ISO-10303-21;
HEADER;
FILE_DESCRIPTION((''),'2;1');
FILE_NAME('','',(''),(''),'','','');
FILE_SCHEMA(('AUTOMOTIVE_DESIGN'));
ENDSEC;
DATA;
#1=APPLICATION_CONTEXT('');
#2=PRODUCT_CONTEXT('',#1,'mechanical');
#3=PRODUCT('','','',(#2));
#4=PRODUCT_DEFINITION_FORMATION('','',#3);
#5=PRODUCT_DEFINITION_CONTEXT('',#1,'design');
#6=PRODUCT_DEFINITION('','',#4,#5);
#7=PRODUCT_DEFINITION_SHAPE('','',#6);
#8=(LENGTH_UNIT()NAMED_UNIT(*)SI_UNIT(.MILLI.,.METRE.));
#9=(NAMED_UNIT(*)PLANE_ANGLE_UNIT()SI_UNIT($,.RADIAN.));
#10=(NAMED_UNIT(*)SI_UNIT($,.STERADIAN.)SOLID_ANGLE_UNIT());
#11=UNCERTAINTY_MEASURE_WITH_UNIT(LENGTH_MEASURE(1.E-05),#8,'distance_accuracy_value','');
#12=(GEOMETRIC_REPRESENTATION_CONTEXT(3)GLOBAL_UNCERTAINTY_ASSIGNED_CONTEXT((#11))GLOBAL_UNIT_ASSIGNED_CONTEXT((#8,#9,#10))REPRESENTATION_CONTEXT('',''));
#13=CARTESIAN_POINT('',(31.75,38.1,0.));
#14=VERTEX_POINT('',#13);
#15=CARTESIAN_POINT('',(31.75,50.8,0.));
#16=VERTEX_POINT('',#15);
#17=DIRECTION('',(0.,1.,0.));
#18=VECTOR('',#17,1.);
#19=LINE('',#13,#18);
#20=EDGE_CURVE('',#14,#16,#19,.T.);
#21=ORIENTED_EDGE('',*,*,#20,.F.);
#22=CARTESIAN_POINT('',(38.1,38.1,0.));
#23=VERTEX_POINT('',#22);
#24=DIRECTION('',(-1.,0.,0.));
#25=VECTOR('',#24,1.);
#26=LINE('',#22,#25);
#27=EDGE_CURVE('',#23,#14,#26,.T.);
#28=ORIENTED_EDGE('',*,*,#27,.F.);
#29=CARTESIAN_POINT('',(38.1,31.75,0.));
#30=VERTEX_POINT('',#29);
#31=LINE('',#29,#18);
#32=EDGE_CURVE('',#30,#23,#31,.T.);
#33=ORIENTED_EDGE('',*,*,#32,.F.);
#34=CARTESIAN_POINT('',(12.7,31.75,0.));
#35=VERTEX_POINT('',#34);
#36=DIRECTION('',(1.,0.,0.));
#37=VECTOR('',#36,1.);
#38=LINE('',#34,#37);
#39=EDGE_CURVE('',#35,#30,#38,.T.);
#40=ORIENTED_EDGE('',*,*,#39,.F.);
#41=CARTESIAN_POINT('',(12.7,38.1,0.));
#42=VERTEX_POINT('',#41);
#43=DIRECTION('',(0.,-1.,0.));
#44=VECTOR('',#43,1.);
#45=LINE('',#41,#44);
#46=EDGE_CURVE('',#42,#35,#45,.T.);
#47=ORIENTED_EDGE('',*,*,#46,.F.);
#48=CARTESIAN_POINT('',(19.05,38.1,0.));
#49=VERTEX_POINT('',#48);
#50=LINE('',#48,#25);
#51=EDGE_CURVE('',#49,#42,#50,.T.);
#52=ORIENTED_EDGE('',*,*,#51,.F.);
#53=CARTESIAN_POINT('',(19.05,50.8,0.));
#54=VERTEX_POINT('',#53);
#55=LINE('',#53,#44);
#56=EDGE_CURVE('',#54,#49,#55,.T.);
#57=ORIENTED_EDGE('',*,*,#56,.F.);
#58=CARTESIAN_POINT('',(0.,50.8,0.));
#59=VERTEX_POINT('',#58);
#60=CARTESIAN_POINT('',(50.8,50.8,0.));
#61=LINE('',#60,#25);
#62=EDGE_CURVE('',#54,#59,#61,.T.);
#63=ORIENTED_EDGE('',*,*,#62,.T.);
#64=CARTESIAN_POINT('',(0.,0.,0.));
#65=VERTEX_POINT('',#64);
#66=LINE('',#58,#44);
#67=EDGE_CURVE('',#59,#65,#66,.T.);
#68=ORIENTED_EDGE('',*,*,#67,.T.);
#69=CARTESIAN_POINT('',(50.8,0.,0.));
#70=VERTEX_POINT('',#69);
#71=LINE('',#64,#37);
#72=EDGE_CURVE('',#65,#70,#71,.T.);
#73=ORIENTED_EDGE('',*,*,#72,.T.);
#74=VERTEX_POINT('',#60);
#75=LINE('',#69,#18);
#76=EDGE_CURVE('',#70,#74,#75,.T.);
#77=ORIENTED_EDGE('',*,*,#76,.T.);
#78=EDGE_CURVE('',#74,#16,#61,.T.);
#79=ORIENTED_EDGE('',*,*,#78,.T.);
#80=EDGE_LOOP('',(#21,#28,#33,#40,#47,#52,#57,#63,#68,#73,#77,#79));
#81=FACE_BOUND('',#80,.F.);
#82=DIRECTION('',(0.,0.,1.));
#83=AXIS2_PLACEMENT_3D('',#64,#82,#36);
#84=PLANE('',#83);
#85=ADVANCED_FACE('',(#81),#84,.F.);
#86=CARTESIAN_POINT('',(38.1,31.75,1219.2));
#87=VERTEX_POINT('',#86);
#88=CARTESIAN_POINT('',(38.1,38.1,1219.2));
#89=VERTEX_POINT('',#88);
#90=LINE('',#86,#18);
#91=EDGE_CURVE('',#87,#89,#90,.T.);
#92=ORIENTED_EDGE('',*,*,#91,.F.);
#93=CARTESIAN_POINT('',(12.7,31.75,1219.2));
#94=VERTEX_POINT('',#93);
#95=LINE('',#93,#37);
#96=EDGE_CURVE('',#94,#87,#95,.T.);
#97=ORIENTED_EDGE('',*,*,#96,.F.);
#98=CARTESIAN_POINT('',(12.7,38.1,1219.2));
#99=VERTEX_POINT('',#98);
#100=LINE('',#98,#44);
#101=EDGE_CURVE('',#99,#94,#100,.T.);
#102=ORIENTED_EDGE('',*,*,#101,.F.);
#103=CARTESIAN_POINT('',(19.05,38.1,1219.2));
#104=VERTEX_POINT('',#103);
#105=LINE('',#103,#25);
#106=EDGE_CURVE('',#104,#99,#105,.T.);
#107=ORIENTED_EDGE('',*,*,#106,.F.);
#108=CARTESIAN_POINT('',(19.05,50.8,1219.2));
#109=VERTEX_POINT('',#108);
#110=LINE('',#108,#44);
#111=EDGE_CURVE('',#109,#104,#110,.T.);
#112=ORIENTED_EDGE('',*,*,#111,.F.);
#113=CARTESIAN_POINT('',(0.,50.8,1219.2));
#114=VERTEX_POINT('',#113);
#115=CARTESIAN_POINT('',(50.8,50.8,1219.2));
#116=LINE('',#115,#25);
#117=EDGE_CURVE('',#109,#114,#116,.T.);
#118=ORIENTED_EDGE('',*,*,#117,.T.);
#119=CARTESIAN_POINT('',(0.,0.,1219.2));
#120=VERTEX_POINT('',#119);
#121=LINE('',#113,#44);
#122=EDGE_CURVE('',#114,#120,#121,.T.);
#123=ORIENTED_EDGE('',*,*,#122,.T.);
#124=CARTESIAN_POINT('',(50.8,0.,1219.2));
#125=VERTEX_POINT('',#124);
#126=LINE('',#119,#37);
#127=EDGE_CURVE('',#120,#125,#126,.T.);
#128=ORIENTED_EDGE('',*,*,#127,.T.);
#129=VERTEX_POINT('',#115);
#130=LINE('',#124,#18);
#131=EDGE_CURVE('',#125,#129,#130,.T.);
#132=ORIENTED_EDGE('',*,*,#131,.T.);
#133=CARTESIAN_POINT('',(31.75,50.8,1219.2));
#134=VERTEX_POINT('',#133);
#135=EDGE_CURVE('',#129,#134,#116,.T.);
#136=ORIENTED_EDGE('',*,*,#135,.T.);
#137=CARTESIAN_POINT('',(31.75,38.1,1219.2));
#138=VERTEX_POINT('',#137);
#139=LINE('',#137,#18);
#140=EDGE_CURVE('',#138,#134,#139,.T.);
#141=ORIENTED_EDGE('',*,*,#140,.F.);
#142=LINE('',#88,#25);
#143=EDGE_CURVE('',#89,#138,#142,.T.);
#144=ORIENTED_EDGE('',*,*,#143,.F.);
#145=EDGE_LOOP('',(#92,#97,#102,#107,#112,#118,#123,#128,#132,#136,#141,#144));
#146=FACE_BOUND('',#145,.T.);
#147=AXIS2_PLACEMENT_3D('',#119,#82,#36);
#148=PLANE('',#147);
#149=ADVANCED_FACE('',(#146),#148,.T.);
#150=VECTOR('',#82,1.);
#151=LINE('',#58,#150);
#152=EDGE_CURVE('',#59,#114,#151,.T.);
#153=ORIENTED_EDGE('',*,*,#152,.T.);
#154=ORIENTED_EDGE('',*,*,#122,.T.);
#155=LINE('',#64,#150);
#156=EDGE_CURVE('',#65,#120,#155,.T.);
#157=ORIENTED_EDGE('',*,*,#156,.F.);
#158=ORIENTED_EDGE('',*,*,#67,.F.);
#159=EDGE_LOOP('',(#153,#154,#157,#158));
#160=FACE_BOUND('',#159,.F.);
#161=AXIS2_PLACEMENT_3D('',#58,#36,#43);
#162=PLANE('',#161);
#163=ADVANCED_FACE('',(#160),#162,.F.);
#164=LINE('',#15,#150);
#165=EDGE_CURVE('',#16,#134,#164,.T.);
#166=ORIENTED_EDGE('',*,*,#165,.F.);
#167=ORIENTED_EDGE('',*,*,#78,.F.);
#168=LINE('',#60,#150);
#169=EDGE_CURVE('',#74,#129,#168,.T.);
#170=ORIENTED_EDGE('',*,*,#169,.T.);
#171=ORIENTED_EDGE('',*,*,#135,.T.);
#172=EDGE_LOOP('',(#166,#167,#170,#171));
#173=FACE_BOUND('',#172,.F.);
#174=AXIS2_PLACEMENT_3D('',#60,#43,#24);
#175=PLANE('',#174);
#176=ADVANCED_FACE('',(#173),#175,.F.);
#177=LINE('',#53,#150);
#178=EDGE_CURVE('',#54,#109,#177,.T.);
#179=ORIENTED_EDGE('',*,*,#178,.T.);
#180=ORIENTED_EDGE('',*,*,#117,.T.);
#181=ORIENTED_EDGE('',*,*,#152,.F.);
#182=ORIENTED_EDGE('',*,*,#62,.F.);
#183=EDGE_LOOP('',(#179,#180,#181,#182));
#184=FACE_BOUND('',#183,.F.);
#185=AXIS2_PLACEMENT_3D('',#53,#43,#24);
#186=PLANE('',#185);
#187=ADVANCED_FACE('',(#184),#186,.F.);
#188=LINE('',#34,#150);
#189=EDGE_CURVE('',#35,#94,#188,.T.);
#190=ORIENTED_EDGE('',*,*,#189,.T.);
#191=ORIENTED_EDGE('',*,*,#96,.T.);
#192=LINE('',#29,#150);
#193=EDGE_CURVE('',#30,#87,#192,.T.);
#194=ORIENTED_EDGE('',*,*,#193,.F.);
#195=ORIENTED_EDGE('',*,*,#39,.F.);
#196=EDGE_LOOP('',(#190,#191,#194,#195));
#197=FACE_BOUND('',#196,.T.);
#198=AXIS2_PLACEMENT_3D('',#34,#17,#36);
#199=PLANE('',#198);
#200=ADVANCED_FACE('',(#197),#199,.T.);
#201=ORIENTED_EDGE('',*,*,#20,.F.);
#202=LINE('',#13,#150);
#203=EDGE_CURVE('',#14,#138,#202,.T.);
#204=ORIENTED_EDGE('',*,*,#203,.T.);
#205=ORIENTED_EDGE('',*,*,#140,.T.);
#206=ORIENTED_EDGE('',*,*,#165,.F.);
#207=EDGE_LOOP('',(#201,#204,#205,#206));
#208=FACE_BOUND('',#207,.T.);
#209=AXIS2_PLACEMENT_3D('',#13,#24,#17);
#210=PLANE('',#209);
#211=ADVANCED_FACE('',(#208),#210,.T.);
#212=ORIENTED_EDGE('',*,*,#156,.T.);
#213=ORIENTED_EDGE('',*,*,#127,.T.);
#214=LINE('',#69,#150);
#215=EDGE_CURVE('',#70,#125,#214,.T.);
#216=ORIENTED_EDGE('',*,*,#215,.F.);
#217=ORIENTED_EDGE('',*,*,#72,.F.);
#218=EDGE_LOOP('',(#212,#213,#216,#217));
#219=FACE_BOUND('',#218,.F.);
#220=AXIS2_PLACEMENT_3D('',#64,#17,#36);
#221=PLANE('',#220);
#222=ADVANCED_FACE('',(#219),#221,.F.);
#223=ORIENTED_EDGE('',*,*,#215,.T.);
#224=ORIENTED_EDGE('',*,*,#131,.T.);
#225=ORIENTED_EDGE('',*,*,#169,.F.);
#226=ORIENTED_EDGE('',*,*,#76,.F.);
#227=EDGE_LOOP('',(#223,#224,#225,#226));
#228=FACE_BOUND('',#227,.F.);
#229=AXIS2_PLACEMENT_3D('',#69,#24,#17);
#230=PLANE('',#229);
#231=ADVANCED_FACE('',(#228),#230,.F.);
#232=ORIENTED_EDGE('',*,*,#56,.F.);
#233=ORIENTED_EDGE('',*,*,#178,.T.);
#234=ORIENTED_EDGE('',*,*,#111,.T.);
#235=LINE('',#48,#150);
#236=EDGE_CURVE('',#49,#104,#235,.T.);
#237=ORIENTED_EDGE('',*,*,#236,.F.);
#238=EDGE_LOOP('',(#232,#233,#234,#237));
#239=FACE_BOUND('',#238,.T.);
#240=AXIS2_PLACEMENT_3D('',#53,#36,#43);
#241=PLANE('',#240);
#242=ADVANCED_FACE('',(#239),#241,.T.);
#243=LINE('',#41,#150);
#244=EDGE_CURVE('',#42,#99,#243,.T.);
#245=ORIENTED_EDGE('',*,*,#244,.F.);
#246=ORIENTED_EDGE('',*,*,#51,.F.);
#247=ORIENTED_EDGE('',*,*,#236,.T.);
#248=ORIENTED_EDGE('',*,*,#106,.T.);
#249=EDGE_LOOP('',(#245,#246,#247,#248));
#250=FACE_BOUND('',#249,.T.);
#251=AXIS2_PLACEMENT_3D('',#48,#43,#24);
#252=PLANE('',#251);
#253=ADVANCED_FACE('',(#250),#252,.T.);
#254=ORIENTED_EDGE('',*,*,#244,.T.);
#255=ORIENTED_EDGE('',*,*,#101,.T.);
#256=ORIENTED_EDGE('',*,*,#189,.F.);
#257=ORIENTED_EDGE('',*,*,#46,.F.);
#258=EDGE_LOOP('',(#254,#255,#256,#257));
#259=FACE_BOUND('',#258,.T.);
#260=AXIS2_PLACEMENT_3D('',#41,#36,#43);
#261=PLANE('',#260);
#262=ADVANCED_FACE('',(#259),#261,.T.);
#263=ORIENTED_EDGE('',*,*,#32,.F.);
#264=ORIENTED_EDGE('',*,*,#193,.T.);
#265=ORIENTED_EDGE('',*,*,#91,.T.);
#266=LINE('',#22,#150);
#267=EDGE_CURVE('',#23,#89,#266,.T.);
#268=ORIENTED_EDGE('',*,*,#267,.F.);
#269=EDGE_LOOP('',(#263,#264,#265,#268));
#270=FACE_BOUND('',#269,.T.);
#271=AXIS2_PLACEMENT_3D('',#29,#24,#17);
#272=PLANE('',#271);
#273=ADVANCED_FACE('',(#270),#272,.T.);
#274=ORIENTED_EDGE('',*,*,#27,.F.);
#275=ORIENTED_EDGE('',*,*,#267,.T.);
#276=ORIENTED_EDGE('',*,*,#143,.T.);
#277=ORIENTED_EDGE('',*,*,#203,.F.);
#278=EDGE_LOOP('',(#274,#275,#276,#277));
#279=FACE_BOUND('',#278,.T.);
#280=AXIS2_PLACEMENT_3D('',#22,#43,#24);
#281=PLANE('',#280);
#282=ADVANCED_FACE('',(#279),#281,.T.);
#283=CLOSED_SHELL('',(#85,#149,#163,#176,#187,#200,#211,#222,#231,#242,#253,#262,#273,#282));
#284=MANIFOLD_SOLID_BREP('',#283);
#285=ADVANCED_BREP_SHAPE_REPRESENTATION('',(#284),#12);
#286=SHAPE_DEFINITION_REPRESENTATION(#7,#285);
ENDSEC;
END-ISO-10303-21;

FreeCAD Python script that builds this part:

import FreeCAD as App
import Part
import Sketcher

V = App.Vector
Q = App.Units.Quantity


def add_polygon(sketch, points):
    """Adds a closed chain of lines whose ends are joined by coincident constraints."""
    first, n = sketch.GeometryCount, len(points)
    for a, b in zip(points, points[1:] + points[:1]):
        sketch.addGeometry(Part.LineSegment(App.Vector(*a, 0), App.Vector(*b, 0)), False)
    for i in range(n):
        sketch.addConstraint(Sketcher.Constraint("Coincident", first + i, 2, first + (i + 1) % n, 1))

doc = App.newDocument("Part")
body = doc.addObject("PartDesign::Body", "Body")

# Sketch on XY plane
sketch1 = body.newObject("Sketcher::SketchObject", "Sketch")
sketch1.AttachmentSupport = (doc.getObject("XY_Plane"), [""])
sketch1.MapMode = "FlatFace"
add_polygon(sketch1, [(0, 50.8), (0, 0), (50.8, 0), (50.8, 50.8), (31.75, 50.8), (31.75, 38.1), (38.1, 38.1), (38.1, 31.75), (12.7, 31.75), (12.7, 38.1), (19.05, 38.1), (19.05, 50.8)])  # lines 0-11
sketch1.addConstraint([
    Sketcher.Constraint("Vertical", 0),
    Sketcher.Constraint("Horizontal", 1),
    Sketcher.Constraint("Vertical", 2),
    Sketcher.Constraint("Horizontal", 3),
    Sketcher.Constraint("Vertical", 4),
    Sketcher.Constraint("Horizontal", 5),
    Sketcher.Constraint("Vertical", 6),
    Sketcher.Constraint("Horizontal", 7),
    Sketcher.Constraint("Vertical", 8),
    Sketcher.Constraint("Horizontal", 9),
    Sketcher.Constraint("Vertical", 10),
    Sketcher.Constraint("Horizontal", 11),
    Sketcher.Constraint("Coincident", 0, 2, -1, 1),
    Sketcher.Constraint("Horizontal", 5, 2, 8, 2),
    Sketcher.Constraint("Horizontal", 3, 2, 10, 2),
    Sketcher.Constraint("Equal", 5, 9),
    Sketcher.Constraint("Equal", 3, 11),
    Sketcher.Constraint("Equal", 1, 0),
    Sketcher.Constraint("Equal", 9, 6),
    Sketcher.Constraint("DistanceX", 1, 1, 1, 2, Q("2 in")),
    Sketcher.Constraint("DistanceY", 4, 2, 4, 1, Q("0.5 in")),
    Sketcher.Constraint("DistanceX", 3, 2, 3, 1, Q("0.75 in")),
    Sketcher.Constraint("DistanceX", 5, 1, 5, 2, Q("0.25 in")),
])
pad1 = body.newObject("PartDesign::Pad", "Pad")
pad1.Profile = sketch1
pad1.Length = Q("48 in")

doc.recompute()
